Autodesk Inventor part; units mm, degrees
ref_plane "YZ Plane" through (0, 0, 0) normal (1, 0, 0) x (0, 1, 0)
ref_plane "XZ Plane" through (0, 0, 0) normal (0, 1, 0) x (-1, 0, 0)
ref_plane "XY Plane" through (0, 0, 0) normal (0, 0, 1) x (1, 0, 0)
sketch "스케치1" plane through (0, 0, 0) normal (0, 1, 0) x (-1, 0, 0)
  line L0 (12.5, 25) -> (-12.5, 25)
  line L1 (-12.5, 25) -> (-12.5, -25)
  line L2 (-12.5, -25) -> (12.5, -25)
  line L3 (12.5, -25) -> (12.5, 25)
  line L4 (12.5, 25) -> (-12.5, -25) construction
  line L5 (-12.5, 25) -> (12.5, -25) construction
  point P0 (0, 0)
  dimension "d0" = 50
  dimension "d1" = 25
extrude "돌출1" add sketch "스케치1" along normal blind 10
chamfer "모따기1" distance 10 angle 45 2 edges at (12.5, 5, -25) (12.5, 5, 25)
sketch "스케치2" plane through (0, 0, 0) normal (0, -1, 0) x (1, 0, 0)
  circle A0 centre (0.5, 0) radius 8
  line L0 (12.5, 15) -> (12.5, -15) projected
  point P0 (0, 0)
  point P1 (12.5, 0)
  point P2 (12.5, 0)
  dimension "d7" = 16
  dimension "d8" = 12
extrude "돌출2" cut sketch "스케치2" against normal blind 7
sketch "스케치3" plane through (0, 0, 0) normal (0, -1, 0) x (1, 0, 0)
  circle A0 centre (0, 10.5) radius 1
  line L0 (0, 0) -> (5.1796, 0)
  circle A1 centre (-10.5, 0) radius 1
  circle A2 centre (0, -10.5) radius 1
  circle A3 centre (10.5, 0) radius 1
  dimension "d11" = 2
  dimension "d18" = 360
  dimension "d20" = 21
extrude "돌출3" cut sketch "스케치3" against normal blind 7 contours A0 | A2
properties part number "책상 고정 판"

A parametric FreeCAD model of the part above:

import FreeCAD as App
import Part
import Sketcher
from FreeCAD import Vector


def edges_at(feature, points):
    """Names of the edges that pass closest to the given points."""
    edges = feature.Shape.Edges
    near = lambda p: min(range(len(edges)), key=lambda i: edges[i].distToShape(Part.Vertex(*p))[0])
    return sorted({f"Edge{near(p) + 1}" for p in points})


def add_polygon(sketch, points):
    """Adds a closed chain of lines whose ends are joined by coincident constraints."""
    first, n = sketch.GeometryCount, len(points)
    for a, b in zip(points, points[1:] + points[:1]):
        sketch.addGeometry(Part.LineSegment(App.Vector(*a, 0), App.Vector(*b, 0)), False)
    for i in range(n):
        sketch.addConstraint(Sketcher.Constraint("Coincident", first + i, 2, first + (i + 1) % n, 1))

doc = App.newDocument("Part")
body = doc.addObject("PartDesign::Body", "Body")

# Sketch on XZ plane
sketch1 = body.newObject("Sketcher::SketchObject", "Sketch")
sketch1.AttachmentSupport = (doc.getObject("XZ_Plane"), [""])
sketch1.MapMode = "FlatFace"
add_polygon(sketch1, [(-12, -25), (-12, 25), (12, 25), (12, -25)])  # lines 0-3
sketch1.addConstraint(Sketcher.Constraint("Vertical", 0))
sketch1.addConstraint(Sketcher.Constraint("Horizontal", 1))
sketch1.addConstraint(Sketcher.Constraint("Vertical", 2))
sketch1.addConstraint(Sketcher.Constraint("Horizontal", 3))
sketch1.addConstraint(Sketcher.Constraint("Symmetric", 0, 2, 2, 2, -1, 1))
sketch1.addConstraint(Sketcher.Constraint("DistanceX", 1, 1, 1, 2, 25.0))
sketch1.addConstraint(Sketcher.Constraint("DistanceY", 0, 1, 0, 2, 50.0))
pad1 = body.newObject("PartDesign::Pad", "Pad")
pad1.Profile = sketch1
pad1.Length = 10
pad1.Reversed = True
doc.recompute()

chamfer = body.newObject("PartDesign::Chamfer", "Chamfer")
chamfer.Base = (pad1, edges_at(pad1, [(12.5, 5, -25), (12.5, 5, 25)]))
chamfer.Size = 10

# Sketch on XZ plane
sketch2 = body.newObject("Sketcher::SketchObject", "Sketch001")
sketch2.AttachmentSupport = (doc.getObject("XZ_Plane"), [""])
sketch2.MapMode = "FlatFace"
sketch2.addGeometry(Part.Circle(Vector(0, 0, 0), Vector(0, 0, 1), 8), False)
sketch2.addConstraint(Sketcher.Constraint("PointOnObject", 0, 3, -1))
sketch2.addConstraint(Sketcher.Constraint("Diameter", 0, 16.0))
sketch2.addConstraint(Sketcher.Constraint("DistanceX", -1, 1, 0, 3, 0.5))
pocket1 = body.newObject("PartDesign::Pocket", "Pocket")
pocket1.Profile = sketch2
pocket1.Length = 7

# Sketch on XZ plane
sketch3 = body.newObject("Sketcher::SketchObject", "Sketch002")
sketch3.AttachmentSupport = (doc.getObject("XZ_Plane"), [""])
sketch3.MapMode = "FlatFace"
sketch3.addGeometry(Part.Circle(Vector(0, 10.5, 0), Vector(0, 0, 1), 1), False)
sketch3.addGeometry(Part.Circle(Vector(0, -10.5, 0), Vector(0, 0, 1), 1), False)
sketch3.addConstraint(Sketcher.Constraint("Equal", 0, 1))
sketch3.addConstraint(Sketcher.Constraint("Symmetric", 0, 3, 1, 3, -1, 1))
sketch3.addConstraint(Sketcher.Constraint("PointOnObject", 0, 3, -2))
sketch3.addConstraint(Sketcher.Constraint("Diameter", 0, 2.0))
sketch3.addConstraint(Sketcher.Constraint("DistanceY", 1, 3, 0, 3, 21.0))
pocket2 = body.newObject("PartDesign::Pocket", "Pocket001")
pocket2.Profile = sketch3
pocket2.Length = 7

doc.recompute()
